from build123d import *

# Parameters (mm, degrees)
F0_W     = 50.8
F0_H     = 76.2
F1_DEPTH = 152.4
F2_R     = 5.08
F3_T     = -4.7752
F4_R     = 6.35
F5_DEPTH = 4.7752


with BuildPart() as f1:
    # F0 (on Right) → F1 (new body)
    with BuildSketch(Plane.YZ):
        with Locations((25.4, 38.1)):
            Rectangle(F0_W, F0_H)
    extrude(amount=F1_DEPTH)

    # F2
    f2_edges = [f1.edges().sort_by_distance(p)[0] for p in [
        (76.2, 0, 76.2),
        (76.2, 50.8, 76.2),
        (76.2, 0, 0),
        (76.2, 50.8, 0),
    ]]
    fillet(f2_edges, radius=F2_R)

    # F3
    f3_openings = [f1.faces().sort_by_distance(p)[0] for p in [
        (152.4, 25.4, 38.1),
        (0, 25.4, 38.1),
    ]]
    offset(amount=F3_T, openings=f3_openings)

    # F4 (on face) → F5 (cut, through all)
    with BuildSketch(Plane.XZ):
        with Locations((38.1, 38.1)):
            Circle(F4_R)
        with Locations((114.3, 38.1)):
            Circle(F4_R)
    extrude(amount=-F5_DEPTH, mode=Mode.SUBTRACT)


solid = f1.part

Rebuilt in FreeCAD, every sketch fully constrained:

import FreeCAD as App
import Part
import Sketcher
from FreeCAD import Vector
Q = App.Units.Quantity


def edges_at(feature, points):
    """Names of the edges that pass closest to the given points."""
    edges = feature.Shape.Edges
    near = lambda p: min(range(len(edges)), key=lambda i: edges[i].distToShape(Part.Vertex(*p))[0])
    return sorted({f"Edge{near(p) + 1}" for p in points})


def faces_at(feature, points):
    """Names of the faces that lie closest to the given points."""
    faces = feature.Shape.Faces
    near = lambda p: min(range(len(faces)), key=lambda i: faces[i].distToShape(Part.Vertex(*p))[0])
    return sorted({f"Face{near(p) + 1}" for p in points})


def add_polygon(sketch, points):
    """Adds a closed chain of lines whose ends are joined by coincident constraints."""
    first, n = sketch.GeometryCount, len(points)
    for a, b in zip(points, points[1:] + points[:1]):
        sketch.addGeometry(Part.LineSegment(App.Vector(*a, 0), App.Vector(*b, 0)), False)
    for i in range(n):
        sketch.addConstraint(Sketcher.Constraint("Coincident", first + i, 2, first + (i + 1) % n, 1))

doc = App.newDocument("Part")
body = doc.addObject("PartDesign::Body", "Body")

# Sketch on YZ plane
sketch1 = body.newObject("Sketcher::SketchObject", "Sketch")
sketch1.AttachmentSupport = (doc.getObject("YZ_Plane"), [""])
sketch1.MapMode = "FlatFace"
add_polygon(sketch1, [(0, 76), (0, 0), (51, 0), (51, 76)])  # lines 0-3
sketch1.addConstraint(Sketcher.Constraint("Vertical", 0))
sketch1.addConstraint(Sketcher.Constraint("Horizontal", 1))
sketch1.addConstraint(Sketcher.Constraint("Vertical", 2))
sketch1.addConstraint(Sketcher.Constraint("Horizontal", 3))
sketch1.addConstraint(Sketcher.Constraint("Coincident", 0, 2, -1, 1))
sketch1.addConstraint(Sketcher.Constraint("DistanceX", 1, 1, 1, 2, Q("2 in")))
sketch1.addConstraint(Sketcher.Constraint("DistanceY", 0, 2, 0, 1, Q("3 in")))
pad1 = body.newObject("PartDesign::Pad", "Pad")
pad1.Profile = sketch1
pad1.Length = Q("6 in")
doc.recompute()

fillet = body.newObject("PartDesign::Fillet", "Fillet")
fillet.Base = (pad1, edges_at(pad1, [
    (76.2, 0, 76.2),
    (76.2, 50.8, 76.2),
    (76.2, 0, 0),
    (76.2, 50.8, 0),
]))
fillet.Radius = Q("0.2 in")
doc.recompute()

thickness = body.newObject("PartDesign::Thickness", "Thickness")
thickness.Base = (fillet, faces_at(fillet, [(152.4, 25.4, 38.1), (0, 25.4, 38.1)]))
thickness.Value = Q("0.188 in")
thickness.Reversed = True
thickness.Join = "Arc"

# Sketch on XZ plane
sketch2 = body.newObject("Sketcher::SketchObject", "Sketch001")
sketch2.AttachmentSupport = (doc.getObject("XZ_Plane"), [""])
sketch2.MapMode = "FlatFace"
sketch2.addGeometry(Part.Circle(Vector(38, 38, 0), Vector(0, 0, 1), 6), False)
sketch2.addGeometry(Part.Circle(Vector(114, 38, 0), Vector(0, 0, 1), 6), False)
sketch2.addConstraint(Sketcher.Constraint("Equal", 0, 1))
sketch2.addConstraint(Sketcher.Constraint("Horizontal", 0, 3, 1, 3))
sketch2.addConstraint(Sketcher.Constraint("Diameter", 0, Q("0.5 in")))
sketch2.addConstraint(Sketcher.Constraint("DistanceX", 0, 3, 1, 3, Q("3 in")))
sketch2.addConstraint(Sketcher.Constraint("DistanceX", -1, 1, 0, 3, Q("1.5 in")))
sketch2.addConstraint(Sketcher.Constraint("DistanceY", -1, 1, 0, 3, Q("1.5 in")))
pocket1 = body.newObject("PartDesign::Pocket", "Pocket")
pocket1.Profile = sketch2
pocket1.Length = Q("0.188 in")

doc.recompute()
